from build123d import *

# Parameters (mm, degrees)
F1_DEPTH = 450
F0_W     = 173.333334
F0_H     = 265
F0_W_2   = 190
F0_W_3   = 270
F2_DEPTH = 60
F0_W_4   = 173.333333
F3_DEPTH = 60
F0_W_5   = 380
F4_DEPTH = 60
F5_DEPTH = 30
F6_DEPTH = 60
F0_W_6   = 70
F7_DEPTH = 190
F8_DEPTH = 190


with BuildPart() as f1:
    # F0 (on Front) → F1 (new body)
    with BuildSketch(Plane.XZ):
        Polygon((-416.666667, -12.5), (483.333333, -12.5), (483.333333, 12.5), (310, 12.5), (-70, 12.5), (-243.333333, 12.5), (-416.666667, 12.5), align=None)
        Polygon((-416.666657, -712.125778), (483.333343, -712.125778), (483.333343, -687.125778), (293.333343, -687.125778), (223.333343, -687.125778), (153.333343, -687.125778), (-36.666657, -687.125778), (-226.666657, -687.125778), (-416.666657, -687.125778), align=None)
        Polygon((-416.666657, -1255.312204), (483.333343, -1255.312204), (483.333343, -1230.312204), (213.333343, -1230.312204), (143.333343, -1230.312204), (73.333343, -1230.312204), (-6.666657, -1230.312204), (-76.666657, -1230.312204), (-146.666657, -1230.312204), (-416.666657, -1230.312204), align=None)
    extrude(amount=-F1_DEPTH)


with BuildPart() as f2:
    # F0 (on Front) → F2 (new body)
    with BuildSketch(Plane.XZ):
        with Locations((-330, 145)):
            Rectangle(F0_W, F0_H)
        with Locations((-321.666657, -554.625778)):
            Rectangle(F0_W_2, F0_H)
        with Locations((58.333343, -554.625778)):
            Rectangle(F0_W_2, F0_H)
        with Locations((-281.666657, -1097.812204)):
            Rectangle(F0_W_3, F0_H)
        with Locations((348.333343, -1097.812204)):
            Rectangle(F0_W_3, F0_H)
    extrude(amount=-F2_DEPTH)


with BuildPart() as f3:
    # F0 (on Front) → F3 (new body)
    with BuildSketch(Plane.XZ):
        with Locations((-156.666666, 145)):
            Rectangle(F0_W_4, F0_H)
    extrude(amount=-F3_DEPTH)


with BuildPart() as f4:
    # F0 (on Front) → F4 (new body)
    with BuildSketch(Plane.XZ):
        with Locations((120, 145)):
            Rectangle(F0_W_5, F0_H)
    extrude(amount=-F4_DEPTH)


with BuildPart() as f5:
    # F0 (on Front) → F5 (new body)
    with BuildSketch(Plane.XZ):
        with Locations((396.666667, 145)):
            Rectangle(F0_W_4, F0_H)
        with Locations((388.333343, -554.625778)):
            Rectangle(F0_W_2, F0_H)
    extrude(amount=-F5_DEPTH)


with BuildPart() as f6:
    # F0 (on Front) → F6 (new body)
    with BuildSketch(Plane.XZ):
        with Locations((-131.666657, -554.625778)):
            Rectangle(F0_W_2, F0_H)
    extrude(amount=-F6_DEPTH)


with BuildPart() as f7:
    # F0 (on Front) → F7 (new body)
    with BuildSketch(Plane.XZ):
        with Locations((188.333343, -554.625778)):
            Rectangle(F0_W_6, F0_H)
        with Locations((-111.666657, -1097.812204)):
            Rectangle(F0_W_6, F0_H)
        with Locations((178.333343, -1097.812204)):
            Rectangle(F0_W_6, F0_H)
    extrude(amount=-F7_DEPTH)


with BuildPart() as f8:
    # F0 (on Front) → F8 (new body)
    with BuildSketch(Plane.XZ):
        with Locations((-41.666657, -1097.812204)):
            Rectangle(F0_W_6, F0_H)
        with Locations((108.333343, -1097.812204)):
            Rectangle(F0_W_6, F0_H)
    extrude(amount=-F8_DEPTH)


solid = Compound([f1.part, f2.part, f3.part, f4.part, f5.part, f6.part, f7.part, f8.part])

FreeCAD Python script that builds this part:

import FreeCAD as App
import Part
import Sketcher
from FreeCAD import Vector
Q = App.Units.Quantity

doc = App.newDocument("Part")
body = doc.addObject("PartDesign::Body", "Body")
body.AllowCompound = True

sketch1 = body.newObject("Sketcher::SketchObject", "Sketch")
sketch1.AttachmentSupport = (doc.getObject("XZ_Plane"), [""])
sketch1.MapMode = "FlatFace"
sketch1.addGeometry([
    Part.LineSegment(Vector(-417, -12, 0), Vector(483, -12, 0)),
    Part.LineSegment(Vector(483, -12, 0), Vector(483, 12, 0)),
    Part.LineSegment(Vector(483, 12, 0), Vector(-417, 12, 0)),
    Part.LineSegment(Vector(-417, 12, 0), Vector(-417, -12, 0)),
    Part.LineSegment(Vector(-417, -712, 0), Vector(483, -712, 0)),
    Part.LineSegment(Vector(483, -712, 0), Vector(483, -687, 0)),
    Part.LineSegment(Vector(483, -687, 0), Vector(-417, -687, 0)),
    Part.LineSegment(Vector(-417, -687, 0), Vector(-417, -712, 0)),
    Part.LineSegment(Vector(-417, -1255, 0), Vector(483, -1255, 0)),
    Part.LineSegment(Vector(483, -1255, 0), Vector(483, -1230, 0)),
    Part.LineSegment(Vector(483, -1230, 0), Vector(-417, -1230, 0)),
    Part.LineSegment(Vector(-417, -1230, 0), Vector(-417, -1255, 0)),
], False)
sketch1.addConstraint([
    Sketcher.Constraint("Coincident", 0, 2, 1, 1),
    Sketcher.Constraint("Coincident", 1, 2, 2, 1),
    Sketcher.Constraint("Coincident", 2, 2, 3, 1),
    Sketcher.Constraint("Coincident", 3, 2, 0, 1),
    Sketcher.Constraint("Coincident", 4, 2, 5, 1),
    Sketcher.Constraint("Coincident", 5, 2, 6, 1),
    Sketcher.Constraint("Coincident", 6, 2, 7, 1),
    Sketcher.Constraint("Coincident", 7, 2, 4, 1),
    Sketcher.Constraint("Coincident", 8, 2, 9, 1),
    Sketcher.Constraint("Coincident", 9, 2, 10, 1),
    Sketcher.Constraint("Coincident", 10, 2, 11, 1),
    Sketcher.Constraint("Coincident", 11, 2, 8, 1),
    Sketcher.Constraint("Horizontal", 0),
    Sketcher.Constraint("Vertical", 1),
    Sketcher.Constraint("Horizontal", 2),
    Sketcher.Constraint("Vertical", 3),
    Sketcher.Constraint("Horizontal", 4),
    Sketcher.Constraint("Vertical", 5),
    Sketcher.Constraint("Horizontal", 6),
    Sketcher.Constraint("Vertical", 7),
    Sketcher.Constraint("Horizontal", 8),
    Sketcher.Constraint("Vertical", 9),
    Sketcher.Constraint("Horizontal", 10),
    Sketcher.Constraint("Vertical", 11),
    Sketcher.Constraint("Vertical", 5, 2, 8, 2),
    Sketcher.Constraint("Vertical", 7, 2, 10, 2),
    Sketcher.Constraint("Equal", 2, 4),
    Sketcher.Constraint("Equal", 3, 5),
    Sketcher.Constraint("Equal", 7, 9),
    Sketcher.Constraint("DistanceX", 0, 1, 0, 2, Q("900 mm")),
    Sketcher.Constraint("DistanceY", 1, 1, 1, 2, Q("25 mm")),
    Sketcher.Constraint("DistanceY", 0, 2, -1, 1, Q("12.5 mm")),
    Sketcher.Constraint("DistanceY", 4, 2, -1, 1, Q("712.125778 mm")),
    Sketcher.Constraint("DistanceX", 3, 2, 4, 2, Q("900.00001 mm")),
    Sketcher.Constraint("DistanceX", -1, 1, 0, 2, Q("483.333333 mm")),
    Sketcher.Constraint("DistanceY", 8, 2, -1, 1, Q("1255.312204 mm")),
])
pad1 = body.newObject("PartDesign::Pad", "Pad")
pad1.Profile = sketch1
pad1.Length = 450
pad1.Reversed = True
body2 = doc.addObject("PartDesign::Body", "Body001")
body2.AllowCompound = True

sketch2 = body2.newObject("Sketcher::SketchObject", "Sketch001")
sketch2.AttachmentSupport = (doc.getObject("XZ_Plane001"), [""])
sketch2.MapMode = "FlatFace"
sketch2.addGeometry([
    Part.LineSegment(Vector(-417, 278, 0), Vector(-417, 12, 0)),
    Part.LineSegment(Vector(-417, 12, 0), Vector(-243, 12, 0)),
    Part.LineSegment(Vector(-243, 12, 0), Vector(-243, 278, 0)),
    Part.LineSegment(Vector(-243, 278, 0), Vector(-417, 278, 0)),
    Part.LineSegment(Vector(-417, -422, 0), Vector(-417, -687, 0)),
    Part.LineSegment(Vector(-417, -687, 0), Vector(-227, -687, 0)),
    Part.LineSegment(Vector(-227, -687, 0), Vector(-227, -422, 0)),
    Part.LineSegment(Vector(-227, -422, 0), Vector(-417, -422, 0)),
    Part.LineSegment(Vector(-37, -422, 0), Vector(-37, -687, 0)),
    Part.LineSegment(Vector(-37, -687, 0), Vector(153, -687, 0)),
    Part.LineSegment(Vector(153, -687, 0), Vector(153, -422, 0)),
    Part.LineSegment(Vector(153, -422, 0), Vector(-37, -422, 0)),
    Part.LineSegment(Vector(-417, -965, 0), Vector(-417, -1230, 0)),
    Part.LineSegment(Vector(-417, -1230, 0), Vector(-147, -1230, 0)),
    Part.LineSegment(Vector(-147, -1230, 0), Vector(-147, -965, 0)),
    Part.LineSegment(Vector(-147, -965, 0), Vector(-417, -965, 0)),
    Part.LineSegment(Vector(213, -965, 0), Vector(213, -1230, 0)),
    Part.LineSegment(Vector(213, -1230, 0), Vector(483, -1230, 0)),
    Part.LineSegment(Vector(483, -1230, 0), Vector(483, -965, 0)),
    Part.LineSegment(Vector(483, -965, 0), Vector(213, -965, 0)),
], False)
sketch2.addConstraint([
    Sketcher.Constraint("Coincident", 0, 2, 1, 1),
    Sketcher.Constraint("Coincident", 1, 2, 2, 1),
    Sketcher.Constraint("Coincident", 2, 2, 3, 1),
    Sketcher.Constraint("Coincident", 3, 2, 0, 1),
    Sketcher.Constraint("Coincident", 4, 2, 5, 1),
    Sketcher.Constraint("Coincident", 5, 2, 6, 1),
    Sketcher.Constraint("Coincident", 6, 2, 7, 1),
    Sketcher.Constraint("Coincident", 7, 2, 4, 1),
    Sketcher.Constraint("Coincident", 8, 2, 9, 1),
    Sketcher.Constraint("Coincident", 9, 2, 10, 1),
    Sketcher.Constraint("Coincident", 10, 2, 11, 1),
    Sketcher.Constraint("Coincident", 11, 2, 8, 1),
    Sketcher.Constraint("Coincident", 12, 2, 13, 1),
    Sketcher.Constraint("Coincident", 13, 2, 14, 1),
    Sketcher.Constraint("Coincident", 14, 2, 15, 1),
    Sketcher.Constraint("Coincident", 15, 2, 12, 1),
    Sketcher.Constraint("Coincident", 16, 2, 17, 1),
    Sketcher.Constraint("Coincident", 17, 2, 18, 1),
    Sketcher.Constraint("Coincident", 18, 2, 19, 1),
    Sketcher.Constraint("Coincident", 19, 2, 16, 1),
    Sketcher.Constraint("Vertical", 0),
    Sketcher.Constraint("Horizontal", 1),
    Sketcher.Constraint("Vertical", 2),
    Sketcher.Constraint("Horizontal", 3),
    Sketcher.Constraint("Vertical", 4),
    Sketcher.Constraint("Horizontal", 5),
    Sketcher.Constraint("Vertical", 6),
    Sketcher.Constraint("Horizontal", 7),
    Sketcher.Constraint("Vertical", 8),
    Sketcher.Constraint("Horizontal", 9),
    Sketcher.Constraint("Vertical", 10),
    Sketcher.Constraint("Horizontal", 11),
    Sketcher.Constraint("Vertical", 12),
    Sketcher.Constraint("Horizontal", 13),
    Sketcher.Constraint("Vertical", 14),
    Sketcher.Constraint("Horizontal", 15),
    Sketcher.Constraint("Vertical", 16),
    Sketcher.Constraint("Horizontal", 17),
    Sketcher.Constraint("Vertical", 18),
    Sketcher.Constraint("Horizontal", 19),
    Sketcher.Constraint("Horizontal", 5, 2, 8, 2),
    Sketcher.Constraint("Horizontal", 7, 2, 10, 2),
    Sketcher.Constraint("Horizontal", 13, 2, 16, 2),
    Sketcher.Constraint("Horizontal", 15, 2, 18, 2),
    Sketcher.Constraint("Vertical", 7, 2, 12, 2),
    Sketcher.Constraint("Equal", 7, 9),
    Sketcher.Constraint("Equal", 15, 17),
    Sketcher.Constraint("Equal", 2, 4),
    Sketcher.Constraint("Equal", 10, 12),
    Sketcher.Constraint("DistanceX", 5, 1, 5, 2, Q("190 mm")),
    Sketcher.Constraint("DistanceX", 13, 1, 13, 2, Q("270 mm")),
    Sketcher.Constraint("DistanceY", 0, 2, 0, 1, Q("265 mm")),
    Sketcher.Constraint("DistanceX", 5, 2, 8, 2, Q("190 mm")),
    Sketcher.Constraint("DistanceX", 13, 2, 16, 2, Q("360 mm")),
    Sketcher.Constraint("DistanceY", -1, 1, 0, 2, Q("12.5 mm")),
    Sketcher.Constraint("DistanceX", 1, 1, 1, 2, Q("173.333334 mm")),
    Sketcher.Constraint("DistanceY", 4, 2, -1, 1, Q("687.125778 mm")),
    Sketcher.Constraint("DistanceX", 0, 2, 5, 2, Q("190.00001 mm")),
    Sketcher.Constraint("DistanceX", 0, 2, -1, 1, Q("416.666667 mm")),
    Sketcher.Constraint("DistanceY", 12, 2, -1, 1, Q("1230.312204 mm")),
])
pad2 = body2.newObject("PartDesign::Pad", "Pad001")
pad2.Profile = sketch2
pad2.Length = 60
pad2.Reversed = True
body3 = doc.addObject("PartDesign::Body", "Body002")

sketch3 = body3.newObject("Sketcher::SketchObject", "Sketch002")
sketch3.AttachmentSupport = (doc.getObject("XZ_Plane002"), [""])
sketch3.MapMode = "FlatFace"
sketch3.addGeometry([
    Part.LineSegment(Vector(-243, 278, 0), Vector(-243, 12, 0)),
    Part.LineSegment(Vector(-243, 12, 0), Vector(-70, 12, 0)),
    Part.LineSegment(Vector(-70, 12, 0), Vector(-70, 278, 0)),
    Part.LineSegment(Vector(-70, 278, 0), Vector(-243, 278, 0)),
], False)
sketch3.addConstraint([
    Sketcher.Constraint("Coincident", 0, 2, 1, 1),
    Sketcher.Constraint("Coincident", 1, 2, 2, 1),
    Sketcher.Constraint("Coincident", 2, 2, 3, 1),
    Sketcher.Constraint("Coincident", 3, 2, 0, 1),
    Sketcher.Constraint("Vertical", 0),
    Sketcher.Constraint("Horizontal", 1),
    Sketcher.Constraint("Vertical", 2),
    Sketcher.Constraint("Horizontal", 3),
    Sketcher.Constraint("DistanceY", 0, 2, 0, 1, Q("265 mm")),
    Sketcher.Constraint("DistanceX", 1, 2, -1, 1, Q("70 mm")),
    Sketcher.Constraint("DistanceY", -1, 1, 0, 2, Q("12.5 mm")),
    Sketcher.Constraint("DistanceX", 1, 1, 1, 2, Q("173.333333 mm")),
])
pad3 = body3.newObject("PartDesign::Pad", "Pad002")
pad3.Profile = sketch3
pad3.Length = 60
pad3.Reversed = True
body4 = doc.addObject("PartDesign::Body", "Body003")

sketch4 = body4.newObject("Sketcher::SketchObject", "Sketch003")
sketch4.AttachmentSupport = (doc.getObject("XZ_Plane003"), [""])
sketch4.MapMode = "FlatFace"
sketch4.addGeometry([
    Part.LineSegment(Vector(-70, 278, 0), Vector(-70, 12, 0)),
    Part.LineSegment(Vector(-70, 12, 0), Vector(310, 12, 0)),
    Part.LineSegment(Vector(310, 12, 0), Vector(310, 278, 0)),
    Part.LineSegment(Vector(310, 278, 0), Vector(-70, 278, 0)),
], False)
sketch4.addConstraint([
    Sketcher.Constraint("Coincident", 0, 2, 1, 1),
    Sketcher.Constraint("Coincident", 1, 2, 2, 1),
    Sketcher.Constraint("Coincident", 2, 2, 3, 1),
    Sketcher.Constraint("Coincident", 3, 2, 0, 1),
    Sketcher.Constraint("Vertical", 0),
    Sketcher.Constraint("Horizontal", 1),
    Sketcher.Constraint("Vertical", 2),
    Sketcher.Constraint("Horizontal", 3),
    Sketcher.Constraint("DistanceX", 1, 1, 1, 2, Q("380 mm")),
    Sketcher.Constraint("DistanceY", 0, 2, 0, 1, Q("265 mm")),
    Sketcher.Constraint("DistanceX", 0, 2, -1, 1, Q("70 mm")),
    Sketcher.Constraint("DistanceY", -1, 1, 0, 2, Q("12.5 mm")),
])
pad4 = body4.newObject("PartDesign::Pad", "Pad003")
pad4.Profile = sketch4
pad4.Length = 60
pad4.Reversed = True
body5 = doc.addObject("PartDesign::Body", "Body004")
body5.AllowCompound = True

sketch5 = body5.newObject("Sketcher::SketchObject", "Sketch004")
sketch5.AttachmentSupport = (doc.getObject("XZ_Plane004"), [""])
sketch5.MapMode = "FlatFace"
sketch5.addGeometry([
    Part.LineSegment(Vector(310, 278, 0), Vector(310, 12, 0)),
    Part.LineSegment(Vector(310, 12, 0), Vector(483, 12, 0)),
    Part.LineSegment(Vector(483, 12, 0), Vector(483, 278, 0)),
    Part.LineSegment(Vector(483, 278, 0), Vector(310, 278, 0)),
    Part.LineSegment(Vector(293, -422, 0), Vector(293, -687, 0)),
    Part.LineSegment(Vector(293, -687, 0), Vector(483, -687, 0)),
    Part.LineSegment(Vector(483, -687, 0), Vector(483, -422, 0)),
    Part.LineSegment(Vector(483, -422, 0), Vector(293, -422, 0)),
], False)
sketch5.addConstraint([
    Sketcher.Constraint("Coincident", 0, 2, 1, 1),
    Sketcher.Constraint("Coincident", 1, 2, 2, 1),
    Sketcher.Constraint("Coincident", 2, 2, 3, 1),
    Sketcher.Constraint("Coincident", 3, 2, 0, 1),
    Sketcher.Constraint("Coincident", 4, 2, 5, 1),
    Sketcher.Constraint("Coincident", 5, 2, 6, 1),
    Sketcher.Constraint("Coincident", 6, 2, 7, 1),
    Sketcher.Constraint("Coincident", 7, 2, 4, 1),
    Sketcher.Constraint("Vertical", 0),
    Sketcher.Constraint("Horizontal", 1),
    Sketcher.Constraint("Vertical", 2),
    Sketcher.Constraint("Horizontal", 3),
    Sketcher.Constraint("Vertical", 4),
    Sketcher.Constraint("Horizontal", 5),
    Sketcher.Constraint("Vertical", 6),
    Sketcher.Constraint("Horizontal", 7),
    Sketcher.Constraint("Equal", 2, 4),
    Sketcher.Constraint("DistanceX", 5, 1, 5, 2, Q("190 mm")),
    Sketcher.Constraint("DistanceY", 0, 2, 0, 1, Q("265 mm")),
    Sketcher.Constraint("DistanceX", -1, 1, 0, 2, Q("310 mm")),
    Sketcher.Constraint("DistanceY", -1, 1, 0, 2, Q("12.5 mm")),
    Sketcher.Constraint("DistanceX", 1, 1, 1, 2, Q("173.333333 mm")),
    Sketcher.Constraint("DistanceY", 4, 2, -1, 1, Q("687.125778 mm")),
    Sketcher.Constraint("DistanceX", 4, 2, 1, 2, Q("189.99999 mm")),
])
pad5 = body5.newObject("PartDesign::Pad", "Pad004")
pad5.Profile = sketch5
pad5.Length = 30
pad5.Reversed = True
body6 = doc.addObject("PartDesign::Body", "Body005")

sketch6 = body6.newObject("Sketcher::SketchObject", "Sketch005")
sketch6.AttachmentSupport = (doc.getObject("XZ_Plane005"), [""])
sketch6.MapMode = "FlatFace"
sketch6.addGeometry([
    Part.LineSegment(Vector(-227, -422, 0), Vector(-227, -687, 0)),
    Part.LineSegment(Vector(-227, -687, 0), Vector(-37, -687, 0)),
    Part.LineSegment(Vector(-37, -687, 0), Vector(-37, -422, 0)),
    Part.LineSegment(Vector(-37, -422, 0), Vector(-227, -422, 0)),
], False)
sketch6.addConstraint([
    Sketcher.Constraint("Coincident", 0, 2, 1, 1),
    Sketcher.Constraint("Coincident", 1, 2, 2, 1),
    Sketcher.Constraint("Coincident", 2, 2, 3, 1),
    Sketcher.Constraint("Coincident", 3, 2, 0, 1),
    Sketcher.Constraint("Vertical", 0),
    Sketcher.Constraint("Horizontal", 1),
    Sketcher.Constraint("Vertical", 2),
    Sketcher.Constraint("Horizontal", 3),
    Sketcher.Constraint("DistanceX", 1, 1, 1, 2, Q("190 mm")),
    Sketcher.Constraint("DistanceY", 0, 2, 0, 1, Q("265 mm")),
    Sketcher.Constraint("DistanceY", 0, 2, -1, 1, Q("687.125778 mm")),
    Sketcher.Constraint("DistanceX", 0, 2, -1, 1, Q("226.666657 mm")),
])
pad6 = body6.newObject("PartDesign::Pad", "Pad005")
pad6.Profile = sketch6
pad6.Length = 60
pad6.Reversed = True
body7 = doc.addObject("PartDesign::Body", "Body006")
body7.AllowCompound = True

sketch7 = body7.newObject("Sketcher::SketchObject", "Sketch006")
sketch7.AttachmentSupport = (doc.getObject("XZ_Plane006"), [""])
sketch7.MapMode = "FlatFace"
sketch7.addGeometry([
    Part.LineSegment(Vector(153, -422, 0), Vector(153, -687, 0)),
    Part.LineSegment(Vector(153, -687, 0), Vector(223, -687, 0)),
    Part.LineSegment(Vector(223, -687, 0), Vector(223, -422, 0)),
    Part.LineSegment(Vector(223, -422, 0), Vector(153, -422, 0)),
    Part.LineSegment(Vector(-147, -965, 0), Vector(-147, -1230, 0)),
    Part.LineSegment(Vector(-147, -1230, 0), Vector(-77, -1230, 0)),
    Part.LineSegment(Vector(-77, -1230, 0), Vector(-77, -965, 0)),
    Part.LineSegment(Vector(-77, -965, 0), Vector(-147, -965, 0)),
    Part.LineSegment(Vector(143, -965, 0), Vector(143, -1230, 0)),
    Part.LineSegment(Vector(143, -1230, 0), Vector(213, -1230, 0)),
    Part.LineSegment(Vector(213, -1230, 0), Vector(213, -965, 0)),
    Part.LineSegment(Vector(213, -965, 0), Vector(143, -965, 0)),
], False)
sketch7.addConstraint([
    Sketcher.Constraint("Coincident", 0, 2, 1, 1),
    Sketcher.Constraint("Coincident", 1, 2, 2, 1),
    Sketcher.Constraint("Coincident", 2, 2, 3, 1),
    Sketcher.Constraint("Coincident", 3, 2, 0, 1),
    Sketcher.Constraint("Coincident", 4, 2, 5, 1),
    Sketcher.Constraint("Coincident", 5, 2, 6, 1),
    Sketcher.Constraint("Coincident", 6, 2, 7, 1),
    Sketcher.Constraint("Coincident", 7, 2, 4, 1),
    Sketcher.Constraint("Coincident", 8, 2, 9, 1),
    Sketcher.Constraint("Coincident", 9, 2, 10, 1),
    Sketcher.Constraint("Coincident", 10, 2, 11, 1),
    Sketcher.Constraint("Coincident", 11, 2, 8, 1),
    Sketcher.Constraint("Vertical", 0),
    Sketcher.Constraint("Horizontal", 1),
    Sketcher.Constraint("Vertical", 2),
    Sketcher.Constraint("Horizontal", 3),
    Sketcher.Constraint("Vertical", 4),
    Sketcher.Constraint("Horizontal", 5),
    Sketcher.Constraint("Vertical", 6),
    Sketcher.Constraint("Horizontal", 7),
    Sketcher.Constraint("Vertical", 8),
    Sketcher.Constraint("Horizontal", 9),
    Sketcher.Constraint("Vertical", 10),
    Sketcher.Constraint("Horizontal", 11),
    Sketcher.Constraint("Horizontal", 5, 2, 8, 2),
    Sketcher.Constraint("Horizontal", 7, 2, 10, 2),
    Sketcher.Constraint("Equal", 3, 5),
    Sketcher.Constraint("Equal", 7, 9),
    Sketcher.Constraint("Equal", 2, 4),
    Sketcher.Constraint("DistanceX", 1, 1, 1, 2, Q("70 mm")),
    Sketcher.Constraint("DistanceY", 0, 2, 0, 1, Q("265 mm")),
    Sketcher.Constraint("DistanceX", 4, 2, 0, 2, Q("300 mm")),
    Sketcher.Constraint("DistanceX", 5, 2, 8, 2, Q("220 mm")),
    Sketcher.Constraint("DistanceY", 0, 2, -1, 1, Q("687.125778 mm")),
    Sketcher.Constraint("DistanceX", -1, 1, 0, 2, Q("153.333343 mm")),
    Sketcher.Constraint("DistanceY", 4, 2, -1, 1, Q("1230.312204 mm")),
])
pad7 = body7.newObject("PartDesign::Pad", "Pad006")
pad7.Profile = sketch7
pad7.Length = 190
pad7.Reversed = True
body8 = doc.addObject("PartDesign::Body", "Body007")
body8.AllowCompound = True

sketch8 = body8.newObject("Sketcher::SketchObject", "Sketch007")
sketch8.AttachmentSupport = (doc.getObject("XZ_Plane007"), [""])
sketch8.MapMode = "FlatFace"
sketch8.addGeometry([
    Part.LineSegment(Vector(-77, -965, 0), Vector(-77, -1230, 0)),
    Part.LineSegment(Vector(-77, -1230, 0), Vector(-7, -1230, 0)),
    Part.LineSegment(Vector(-7, -1230, 0), Vector(-7, -965, 0)),
    Part.LineSegment(Vector(-7, -965, 0), Vector(-77, -965, 0)),
    Part.LineSegment(Vector(73, -965, 0), Vector(73, -1230, 0)),
    Part.LineSegment(Vector(73, -1230, 0), Vector(143, -1230, 0)),
    Part.LineSegment(Vector(143, -1230, 0), Vector(143, -965, 0)),
    Part.LineSegment(Vector(143, -965, 0), Vector(73, -965, 0)),
], False)
sketch8.addConstraint([
    Sketcher.Constraint("Coincident", 0, 2, 1, 1),
    Sketcher.Constraint("Coincident", 1, 2, 2, 1),
    Sketcher.Constraint("Coincident", 2, 2, 3, 1),
    Sketcher.Constraint("Coincident", 3, 2, 0, 1),
    Sketcher.Constraint("Coincident", 4, 2, 5, 1),
    Sketcher.Constraint("Coincident", 5, 2, 6, 1),
    Sketcher.Constraint("Coincident", 6, 2, 7, 1),
    Sketcher.Constraint("Coincident", 7, 2, 4, 1),
    Sketcher.Constraint("Vertical", 0),
    Sketcher.Constraint("Horizontal", 1),
    Sketcher.Constraint("Vertical", 2),
    Sketcher.Constraint("Horizontal", 3),
    Sketcher.Constraint("Vertical", 4),
    Sketcher.Constraint("Horizontal", 5),
    Sketcher.Constraint("Vertical", 6),
    Sketcher.Constraint("Horizontal", 7),
    Sketcher.Constraint("Horizontal", 1, 2, 4, 2),
    Sketcher.Constraint("Horizontal", 3, 2, 6, 2),
    Sketcher.Constraint("Equal", 3, 5),
    Sketcher.Constraint("DistanceX", 1, 1, 1, 2, Q("70 mm")),
    Sketcher.Constraint("DistanceY", 0, 2, 0, 1, Q("265 mm")),
    Sketcher.Constraint("DistanceX", 1, 2, 4, 2, Q("80 mm")),
    Sketcher.Constraint("DistanceX", 0, 2, -1, 1, Q("76.666657 mm")),
    Sketcher.Constraint("DistanceY", 0, 2, -1, 1, Q("1230.312204 mm")),
])
pad8 = body8.newObject("PartDesign::Pad", "Pad007")
pad8.Profile = sketch8
pad8.Length = 190
pad8.Reversed = True

doc.recompute()
